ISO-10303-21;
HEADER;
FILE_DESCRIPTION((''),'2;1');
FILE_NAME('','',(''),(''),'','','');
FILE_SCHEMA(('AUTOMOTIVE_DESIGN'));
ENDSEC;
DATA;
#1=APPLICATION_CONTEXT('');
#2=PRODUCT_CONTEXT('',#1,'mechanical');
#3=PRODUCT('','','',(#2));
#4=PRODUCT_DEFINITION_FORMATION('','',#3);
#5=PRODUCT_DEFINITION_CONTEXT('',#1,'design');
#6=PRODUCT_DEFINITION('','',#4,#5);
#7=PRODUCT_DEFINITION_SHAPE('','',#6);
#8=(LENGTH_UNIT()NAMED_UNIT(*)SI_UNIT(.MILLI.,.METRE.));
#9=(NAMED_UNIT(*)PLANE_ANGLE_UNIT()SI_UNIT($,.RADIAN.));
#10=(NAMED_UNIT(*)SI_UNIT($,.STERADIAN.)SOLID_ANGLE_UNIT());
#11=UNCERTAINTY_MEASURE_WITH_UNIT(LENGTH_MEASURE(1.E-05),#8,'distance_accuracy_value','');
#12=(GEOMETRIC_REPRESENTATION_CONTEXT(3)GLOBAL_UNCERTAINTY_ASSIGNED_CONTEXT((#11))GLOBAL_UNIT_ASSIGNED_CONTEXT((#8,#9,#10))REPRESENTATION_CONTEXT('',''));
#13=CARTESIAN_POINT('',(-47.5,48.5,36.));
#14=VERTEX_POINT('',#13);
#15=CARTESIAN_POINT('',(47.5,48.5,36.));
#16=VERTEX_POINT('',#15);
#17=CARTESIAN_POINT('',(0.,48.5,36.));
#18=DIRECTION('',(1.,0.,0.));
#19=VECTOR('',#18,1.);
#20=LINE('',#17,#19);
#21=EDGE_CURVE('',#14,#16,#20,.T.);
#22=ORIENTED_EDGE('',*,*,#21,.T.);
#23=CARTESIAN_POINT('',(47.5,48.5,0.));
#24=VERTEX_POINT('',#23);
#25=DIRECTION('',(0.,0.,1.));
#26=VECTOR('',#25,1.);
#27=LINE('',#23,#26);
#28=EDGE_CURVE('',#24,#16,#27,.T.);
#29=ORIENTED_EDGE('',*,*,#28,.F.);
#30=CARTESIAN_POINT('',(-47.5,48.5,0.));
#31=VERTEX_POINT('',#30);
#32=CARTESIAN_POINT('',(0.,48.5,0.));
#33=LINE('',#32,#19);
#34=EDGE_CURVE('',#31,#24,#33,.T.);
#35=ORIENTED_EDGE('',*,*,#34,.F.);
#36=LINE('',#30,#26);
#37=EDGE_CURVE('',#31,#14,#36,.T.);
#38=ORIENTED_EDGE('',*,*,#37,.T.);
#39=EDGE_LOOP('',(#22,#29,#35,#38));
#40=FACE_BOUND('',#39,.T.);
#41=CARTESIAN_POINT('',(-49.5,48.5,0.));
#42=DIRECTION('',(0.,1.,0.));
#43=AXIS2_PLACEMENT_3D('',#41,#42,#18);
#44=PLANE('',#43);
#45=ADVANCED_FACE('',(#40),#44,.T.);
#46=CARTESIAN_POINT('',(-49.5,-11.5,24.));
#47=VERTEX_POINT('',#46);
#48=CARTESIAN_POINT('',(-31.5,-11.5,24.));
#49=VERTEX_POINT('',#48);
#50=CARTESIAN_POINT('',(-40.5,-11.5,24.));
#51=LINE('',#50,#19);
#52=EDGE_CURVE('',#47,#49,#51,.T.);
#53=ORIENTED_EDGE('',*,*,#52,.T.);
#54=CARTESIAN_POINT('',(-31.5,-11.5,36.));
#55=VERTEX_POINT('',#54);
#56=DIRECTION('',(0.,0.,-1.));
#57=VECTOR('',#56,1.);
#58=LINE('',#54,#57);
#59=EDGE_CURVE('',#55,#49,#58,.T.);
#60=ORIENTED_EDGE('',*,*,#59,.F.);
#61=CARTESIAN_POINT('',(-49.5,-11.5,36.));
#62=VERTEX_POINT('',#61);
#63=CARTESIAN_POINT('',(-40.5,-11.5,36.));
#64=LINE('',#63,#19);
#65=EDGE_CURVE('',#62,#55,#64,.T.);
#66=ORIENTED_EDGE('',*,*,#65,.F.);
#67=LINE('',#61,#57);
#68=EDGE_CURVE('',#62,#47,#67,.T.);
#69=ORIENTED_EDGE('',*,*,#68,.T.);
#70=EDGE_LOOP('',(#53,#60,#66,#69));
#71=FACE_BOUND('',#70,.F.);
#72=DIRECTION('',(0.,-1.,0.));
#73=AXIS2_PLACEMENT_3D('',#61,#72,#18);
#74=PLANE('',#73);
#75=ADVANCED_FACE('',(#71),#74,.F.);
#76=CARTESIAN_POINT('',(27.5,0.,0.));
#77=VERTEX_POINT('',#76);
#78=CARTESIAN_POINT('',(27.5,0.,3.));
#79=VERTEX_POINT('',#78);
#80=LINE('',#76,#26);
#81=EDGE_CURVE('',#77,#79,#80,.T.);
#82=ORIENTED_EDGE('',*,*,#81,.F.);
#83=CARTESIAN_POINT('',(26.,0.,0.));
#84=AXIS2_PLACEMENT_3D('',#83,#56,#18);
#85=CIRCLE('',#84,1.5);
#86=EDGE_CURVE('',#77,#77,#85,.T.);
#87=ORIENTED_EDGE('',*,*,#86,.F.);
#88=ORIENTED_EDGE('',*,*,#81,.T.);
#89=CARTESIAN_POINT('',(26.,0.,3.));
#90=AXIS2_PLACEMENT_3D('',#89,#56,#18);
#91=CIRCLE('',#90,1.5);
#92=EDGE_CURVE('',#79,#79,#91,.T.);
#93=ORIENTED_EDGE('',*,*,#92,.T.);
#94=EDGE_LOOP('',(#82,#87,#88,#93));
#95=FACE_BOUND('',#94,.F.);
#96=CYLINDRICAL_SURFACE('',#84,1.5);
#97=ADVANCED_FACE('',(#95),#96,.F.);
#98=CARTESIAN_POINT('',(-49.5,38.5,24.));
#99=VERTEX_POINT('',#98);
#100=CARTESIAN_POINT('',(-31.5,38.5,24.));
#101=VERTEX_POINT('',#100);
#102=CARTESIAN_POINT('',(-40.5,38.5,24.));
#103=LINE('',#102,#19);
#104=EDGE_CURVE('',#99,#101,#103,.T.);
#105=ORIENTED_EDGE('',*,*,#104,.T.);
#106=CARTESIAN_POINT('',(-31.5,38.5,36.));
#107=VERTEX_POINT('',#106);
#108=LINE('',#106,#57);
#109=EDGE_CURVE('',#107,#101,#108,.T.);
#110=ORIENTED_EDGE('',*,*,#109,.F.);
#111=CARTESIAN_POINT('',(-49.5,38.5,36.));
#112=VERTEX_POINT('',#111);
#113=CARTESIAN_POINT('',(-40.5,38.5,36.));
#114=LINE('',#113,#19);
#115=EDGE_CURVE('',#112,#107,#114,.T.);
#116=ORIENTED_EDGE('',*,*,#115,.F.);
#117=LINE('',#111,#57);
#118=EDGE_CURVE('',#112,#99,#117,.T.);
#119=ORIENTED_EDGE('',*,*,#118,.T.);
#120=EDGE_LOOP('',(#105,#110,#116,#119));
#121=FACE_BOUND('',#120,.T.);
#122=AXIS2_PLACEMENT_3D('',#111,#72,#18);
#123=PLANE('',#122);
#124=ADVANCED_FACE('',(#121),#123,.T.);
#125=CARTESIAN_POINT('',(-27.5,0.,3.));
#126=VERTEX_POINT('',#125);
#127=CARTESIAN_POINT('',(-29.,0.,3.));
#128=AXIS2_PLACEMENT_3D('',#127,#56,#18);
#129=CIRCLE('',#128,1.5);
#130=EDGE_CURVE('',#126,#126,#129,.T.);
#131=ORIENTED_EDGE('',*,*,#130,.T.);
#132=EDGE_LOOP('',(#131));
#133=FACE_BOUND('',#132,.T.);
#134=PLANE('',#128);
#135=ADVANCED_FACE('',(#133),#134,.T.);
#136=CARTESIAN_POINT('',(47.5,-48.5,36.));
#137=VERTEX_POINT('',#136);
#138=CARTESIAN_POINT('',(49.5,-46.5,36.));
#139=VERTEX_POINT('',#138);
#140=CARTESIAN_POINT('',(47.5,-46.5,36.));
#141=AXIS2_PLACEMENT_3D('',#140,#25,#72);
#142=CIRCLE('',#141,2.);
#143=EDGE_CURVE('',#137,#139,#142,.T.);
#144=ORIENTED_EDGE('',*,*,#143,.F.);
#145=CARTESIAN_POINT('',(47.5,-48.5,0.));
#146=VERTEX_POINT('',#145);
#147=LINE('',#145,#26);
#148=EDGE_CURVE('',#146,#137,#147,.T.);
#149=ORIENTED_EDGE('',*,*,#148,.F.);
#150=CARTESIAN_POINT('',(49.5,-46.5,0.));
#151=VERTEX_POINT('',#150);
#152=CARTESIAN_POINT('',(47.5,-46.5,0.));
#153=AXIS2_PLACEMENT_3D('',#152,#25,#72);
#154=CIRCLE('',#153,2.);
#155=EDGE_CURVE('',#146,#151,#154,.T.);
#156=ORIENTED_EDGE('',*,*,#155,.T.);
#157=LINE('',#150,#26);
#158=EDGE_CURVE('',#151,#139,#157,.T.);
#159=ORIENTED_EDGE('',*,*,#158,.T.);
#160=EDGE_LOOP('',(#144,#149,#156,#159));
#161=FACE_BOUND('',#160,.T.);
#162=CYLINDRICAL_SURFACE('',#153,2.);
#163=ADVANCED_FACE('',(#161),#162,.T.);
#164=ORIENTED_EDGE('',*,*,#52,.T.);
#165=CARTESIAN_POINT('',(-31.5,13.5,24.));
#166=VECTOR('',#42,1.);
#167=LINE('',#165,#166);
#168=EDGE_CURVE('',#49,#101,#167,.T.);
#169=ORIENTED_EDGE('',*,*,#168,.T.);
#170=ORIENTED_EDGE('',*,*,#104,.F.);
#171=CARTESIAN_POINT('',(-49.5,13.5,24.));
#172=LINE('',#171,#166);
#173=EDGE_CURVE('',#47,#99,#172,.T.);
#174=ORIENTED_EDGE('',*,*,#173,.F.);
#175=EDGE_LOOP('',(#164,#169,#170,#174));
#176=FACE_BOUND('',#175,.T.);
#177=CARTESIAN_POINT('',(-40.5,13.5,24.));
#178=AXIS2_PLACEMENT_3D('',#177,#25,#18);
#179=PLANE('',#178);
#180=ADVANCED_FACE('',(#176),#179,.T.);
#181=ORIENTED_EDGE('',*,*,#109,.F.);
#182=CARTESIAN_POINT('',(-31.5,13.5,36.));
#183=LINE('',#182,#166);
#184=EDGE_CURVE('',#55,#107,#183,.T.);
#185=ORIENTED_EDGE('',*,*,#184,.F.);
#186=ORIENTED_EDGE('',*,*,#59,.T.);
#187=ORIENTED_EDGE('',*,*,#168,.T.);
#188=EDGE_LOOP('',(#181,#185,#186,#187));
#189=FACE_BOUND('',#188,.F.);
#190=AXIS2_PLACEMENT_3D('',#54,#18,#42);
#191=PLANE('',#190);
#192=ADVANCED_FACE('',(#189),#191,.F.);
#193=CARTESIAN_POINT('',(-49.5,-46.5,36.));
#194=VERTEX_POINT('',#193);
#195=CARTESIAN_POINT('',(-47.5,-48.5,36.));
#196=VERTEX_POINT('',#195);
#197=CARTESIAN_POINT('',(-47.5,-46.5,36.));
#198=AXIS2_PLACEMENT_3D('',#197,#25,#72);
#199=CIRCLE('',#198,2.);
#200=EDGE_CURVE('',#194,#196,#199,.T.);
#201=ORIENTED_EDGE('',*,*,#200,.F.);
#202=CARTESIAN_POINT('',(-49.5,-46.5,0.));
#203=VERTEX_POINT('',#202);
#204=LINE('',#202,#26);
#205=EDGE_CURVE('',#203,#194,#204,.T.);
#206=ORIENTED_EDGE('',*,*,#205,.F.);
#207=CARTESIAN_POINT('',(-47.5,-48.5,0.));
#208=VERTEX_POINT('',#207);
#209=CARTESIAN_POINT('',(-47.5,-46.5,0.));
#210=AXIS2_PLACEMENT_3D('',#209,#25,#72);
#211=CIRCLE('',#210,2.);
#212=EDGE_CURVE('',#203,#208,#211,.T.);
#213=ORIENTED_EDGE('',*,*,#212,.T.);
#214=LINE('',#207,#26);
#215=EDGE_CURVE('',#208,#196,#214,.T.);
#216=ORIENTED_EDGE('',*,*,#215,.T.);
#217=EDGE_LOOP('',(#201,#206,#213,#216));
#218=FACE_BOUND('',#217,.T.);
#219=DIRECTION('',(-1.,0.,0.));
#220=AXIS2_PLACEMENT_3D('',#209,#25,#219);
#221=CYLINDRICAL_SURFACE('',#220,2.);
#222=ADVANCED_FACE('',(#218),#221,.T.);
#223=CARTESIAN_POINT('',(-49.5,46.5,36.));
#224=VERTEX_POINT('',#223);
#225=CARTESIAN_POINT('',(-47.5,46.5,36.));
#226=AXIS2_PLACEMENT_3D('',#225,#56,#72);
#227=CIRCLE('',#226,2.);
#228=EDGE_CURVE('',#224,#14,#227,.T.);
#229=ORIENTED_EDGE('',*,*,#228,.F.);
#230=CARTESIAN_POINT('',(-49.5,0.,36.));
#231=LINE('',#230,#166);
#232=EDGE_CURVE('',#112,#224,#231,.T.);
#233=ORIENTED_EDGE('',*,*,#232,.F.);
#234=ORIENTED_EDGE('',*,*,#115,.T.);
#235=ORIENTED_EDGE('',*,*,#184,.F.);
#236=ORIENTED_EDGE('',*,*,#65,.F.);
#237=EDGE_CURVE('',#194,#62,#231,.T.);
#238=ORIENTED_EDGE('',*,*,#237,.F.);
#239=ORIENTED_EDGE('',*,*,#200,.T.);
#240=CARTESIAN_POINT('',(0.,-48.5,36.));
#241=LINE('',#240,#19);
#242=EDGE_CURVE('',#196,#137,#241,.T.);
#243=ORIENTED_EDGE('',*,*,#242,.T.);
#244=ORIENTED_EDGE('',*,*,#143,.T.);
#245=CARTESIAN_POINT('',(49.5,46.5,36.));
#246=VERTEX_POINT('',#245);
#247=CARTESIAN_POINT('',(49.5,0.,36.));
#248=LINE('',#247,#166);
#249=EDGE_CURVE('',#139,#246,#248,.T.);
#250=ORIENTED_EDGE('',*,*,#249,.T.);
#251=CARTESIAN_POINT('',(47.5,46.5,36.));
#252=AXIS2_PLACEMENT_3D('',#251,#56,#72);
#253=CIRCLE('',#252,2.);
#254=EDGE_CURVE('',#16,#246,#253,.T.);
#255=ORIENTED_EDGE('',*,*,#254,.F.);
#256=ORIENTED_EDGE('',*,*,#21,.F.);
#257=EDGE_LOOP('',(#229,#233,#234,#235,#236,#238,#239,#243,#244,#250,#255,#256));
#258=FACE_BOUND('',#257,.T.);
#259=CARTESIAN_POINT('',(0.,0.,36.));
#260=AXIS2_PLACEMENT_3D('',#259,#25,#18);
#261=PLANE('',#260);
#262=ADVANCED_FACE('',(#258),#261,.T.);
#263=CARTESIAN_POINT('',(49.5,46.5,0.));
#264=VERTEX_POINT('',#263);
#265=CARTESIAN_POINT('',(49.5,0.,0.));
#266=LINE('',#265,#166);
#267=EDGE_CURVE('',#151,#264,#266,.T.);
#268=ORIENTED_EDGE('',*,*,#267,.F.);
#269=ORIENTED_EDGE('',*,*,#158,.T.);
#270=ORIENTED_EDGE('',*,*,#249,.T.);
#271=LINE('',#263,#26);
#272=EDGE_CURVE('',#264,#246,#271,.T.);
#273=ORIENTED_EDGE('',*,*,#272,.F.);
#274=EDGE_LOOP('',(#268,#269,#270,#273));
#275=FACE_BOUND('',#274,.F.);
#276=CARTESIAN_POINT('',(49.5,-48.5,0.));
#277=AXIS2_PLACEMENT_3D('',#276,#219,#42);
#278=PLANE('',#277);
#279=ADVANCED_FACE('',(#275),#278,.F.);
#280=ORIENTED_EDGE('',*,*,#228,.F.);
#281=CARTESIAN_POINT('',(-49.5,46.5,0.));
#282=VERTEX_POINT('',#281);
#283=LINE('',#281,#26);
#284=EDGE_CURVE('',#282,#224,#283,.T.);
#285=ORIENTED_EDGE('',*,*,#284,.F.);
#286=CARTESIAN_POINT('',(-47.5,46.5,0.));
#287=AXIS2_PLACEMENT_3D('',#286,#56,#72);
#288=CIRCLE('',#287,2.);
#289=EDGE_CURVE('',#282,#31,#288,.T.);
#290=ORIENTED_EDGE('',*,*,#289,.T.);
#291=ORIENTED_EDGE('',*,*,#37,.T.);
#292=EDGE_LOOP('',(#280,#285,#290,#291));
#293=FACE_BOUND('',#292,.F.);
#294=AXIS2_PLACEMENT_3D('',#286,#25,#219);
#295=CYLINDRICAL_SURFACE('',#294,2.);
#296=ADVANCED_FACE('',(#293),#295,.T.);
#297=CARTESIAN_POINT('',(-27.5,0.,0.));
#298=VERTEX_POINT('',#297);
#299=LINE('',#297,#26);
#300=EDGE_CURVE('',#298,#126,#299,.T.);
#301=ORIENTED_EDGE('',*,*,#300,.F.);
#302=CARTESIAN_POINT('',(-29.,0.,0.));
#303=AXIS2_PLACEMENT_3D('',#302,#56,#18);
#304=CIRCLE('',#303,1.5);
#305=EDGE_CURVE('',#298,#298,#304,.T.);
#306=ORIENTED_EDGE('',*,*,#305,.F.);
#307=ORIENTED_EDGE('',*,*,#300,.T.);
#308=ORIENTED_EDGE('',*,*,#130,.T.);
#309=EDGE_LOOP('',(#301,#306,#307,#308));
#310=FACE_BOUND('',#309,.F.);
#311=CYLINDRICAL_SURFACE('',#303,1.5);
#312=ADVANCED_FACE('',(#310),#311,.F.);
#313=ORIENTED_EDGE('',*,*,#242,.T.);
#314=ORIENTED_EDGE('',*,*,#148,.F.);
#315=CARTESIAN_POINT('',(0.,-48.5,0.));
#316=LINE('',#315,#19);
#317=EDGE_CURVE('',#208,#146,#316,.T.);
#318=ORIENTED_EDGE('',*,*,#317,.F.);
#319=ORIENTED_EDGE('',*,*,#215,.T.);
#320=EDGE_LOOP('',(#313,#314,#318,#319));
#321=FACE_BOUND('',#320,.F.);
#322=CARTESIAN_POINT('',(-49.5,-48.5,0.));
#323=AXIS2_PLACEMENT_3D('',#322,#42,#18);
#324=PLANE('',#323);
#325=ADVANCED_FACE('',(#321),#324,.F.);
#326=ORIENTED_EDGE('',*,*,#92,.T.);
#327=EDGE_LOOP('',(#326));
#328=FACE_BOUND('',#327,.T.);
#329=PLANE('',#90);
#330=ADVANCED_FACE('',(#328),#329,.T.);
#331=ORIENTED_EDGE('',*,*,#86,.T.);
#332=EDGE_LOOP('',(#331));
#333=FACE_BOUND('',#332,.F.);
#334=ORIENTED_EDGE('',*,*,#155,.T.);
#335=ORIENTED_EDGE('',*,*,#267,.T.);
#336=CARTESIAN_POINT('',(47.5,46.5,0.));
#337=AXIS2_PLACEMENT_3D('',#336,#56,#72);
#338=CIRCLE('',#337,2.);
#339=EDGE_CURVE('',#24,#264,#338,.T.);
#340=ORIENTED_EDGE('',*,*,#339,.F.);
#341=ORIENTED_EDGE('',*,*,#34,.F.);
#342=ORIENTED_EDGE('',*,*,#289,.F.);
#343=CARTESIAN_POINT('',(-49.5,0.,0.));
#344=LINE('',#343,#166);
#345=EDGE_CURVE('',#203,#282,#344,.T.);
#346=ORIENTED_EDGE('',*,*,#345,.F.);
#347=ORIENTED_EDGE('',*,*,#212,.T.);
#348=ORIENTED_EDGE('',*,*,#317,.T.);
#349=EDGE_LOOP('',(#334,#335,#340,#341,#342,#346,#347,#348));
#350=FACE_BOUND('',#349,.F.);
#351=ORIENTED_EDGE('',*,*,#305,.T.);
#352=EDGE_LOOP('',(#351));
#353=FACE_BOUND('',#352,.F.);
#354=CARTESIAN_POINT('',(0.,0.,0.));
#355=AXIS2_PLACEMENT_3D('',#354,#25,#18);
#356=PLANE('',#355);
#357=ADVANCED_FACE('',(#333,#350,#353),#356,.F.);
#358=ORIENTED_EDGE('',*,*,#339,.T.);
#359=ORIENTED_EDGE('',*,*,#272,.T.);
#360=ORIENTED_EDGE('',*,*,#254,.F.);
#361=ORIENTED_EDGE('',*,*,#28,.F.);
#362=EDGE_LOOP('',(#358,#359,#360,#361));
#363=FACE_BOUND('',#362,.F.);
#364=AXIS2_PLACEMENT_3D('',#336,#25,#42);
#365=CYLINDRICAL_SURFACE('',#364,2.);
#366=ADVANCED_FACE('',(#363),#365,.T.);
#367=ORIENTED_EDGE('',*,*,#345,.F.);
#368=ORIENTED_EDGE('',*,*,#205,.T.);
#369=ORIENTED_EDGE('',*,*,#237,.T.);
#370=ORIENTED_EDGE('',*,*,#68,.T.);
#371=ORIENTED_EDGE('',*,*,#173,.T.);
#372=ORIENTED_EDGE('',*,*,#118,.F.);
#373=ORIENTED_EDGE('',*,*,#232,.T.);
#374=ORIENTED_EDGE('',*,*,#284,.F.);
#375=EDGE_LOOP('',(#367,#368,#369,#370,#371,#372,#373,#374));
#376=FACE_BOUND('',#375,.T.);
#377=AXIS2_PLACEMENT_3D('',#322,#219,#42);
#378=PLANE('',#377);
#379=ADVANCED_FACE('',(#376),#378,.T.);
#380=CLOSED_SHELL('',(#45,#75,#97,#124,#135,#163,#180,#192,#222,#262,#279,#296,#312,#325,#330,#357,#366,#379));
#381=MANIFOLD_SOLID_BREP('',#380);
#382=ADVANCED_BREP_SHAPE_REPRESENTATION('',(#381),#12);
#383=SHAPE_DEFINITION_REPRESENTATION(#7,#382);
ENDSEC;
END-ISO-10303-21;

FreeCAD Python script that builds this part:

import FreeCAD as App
import Part
import Sketcher

V = App.Vector


def edges_at(feature, points):
    """Names of the edges that pass closest to the given points."""
    edges = feature.Shape.Edges
    near = lambda p: min(range(len(edges)), key=lambda i: edges[i].distToShape(Part.Vertex(*p))[0])
    return sorted({f"Edge{near(p) + 1}" for p in points})

doc = App.newDocument("Part")
body = doc.addObject("PartDesign::Body", "Body")

sketch1 = body.newObject("Sketcher::SketchObject", "Sketch")
sketch1.AttachmentSupport = (doc.getObject("XY_Plane"), [""])
sketch1.MapMode = "FlatFace"
sketch1.addGeometry([
    Part.LineSegment(V(-49.5, 48.5, 0), V(-49.5, -48.5, 0)),
    Part.LineSegment(V(-49.5, -48.5, 0), V(49.5, -48.5, 0)),
    Part.LineSegment(V(49.5, -48.5, 0), V(49.5, 48.5, 0)),
    Part.LineSegment(V(49.5, 48.5, 0), V(-49.5, 48.5, 0)),
], False)
sketch1.addConstraint([
    Sketcher.Constraint("Coincident", 0, 2, 1, 1),
    Sketcher.Constraint("Coincident", 1, 2, 2, 1),
    Sketcher.Constraint("Coincident", 2, 2, 3, 1),
    Sketcher.Constraint("Coincident", 3, 2, 0, 1),
    Sketcher.Constraint("Vertical", 0),
    Sketcher.Constraint("Horizontal", 1),
    Sketcher.Constraint("Vertical", 2),
    Sketcher.Constraint("Horizontal", 3),
    Sketcher.Constraint("Symmetric", 0, 2, 2, 2, -1, 1),
    Sketcher.Constraint("DistanceX", 1, 1, 1, 2, 99.0),
    Sketcher.Constraint("DistanceY", 0, 2, 0, 1, 97.0),
])
pad1 = body.newObject("PartDesign::Pad", "Pad")
pad1.Profile = sketch1
pad1.Length = 36

sketch2 = body.newObject("Sketcher::SketchObject", "Sketch001")
sketch2.AttachmentSupport = (doc.getObject("XY_Plane"), [""])
sketch2.MapMode = "FlatFace"
sketch2.addGeometry([
    Part.Circle(V(-29, 0, 0), V(0, 0, 1), 1.5),
    Part.Circle(V(26, 0, 0), V(0, 0, 1), 1.5),
], False)
sketch2.addConstraint([
    Sketcher.Constraint("Equal", 0, 1),
    Sketcher.Constraint("PointOnObject", 0, 3, -1),
    Sketcher.Constraint("PointOnObject", 1, 3, -1),
    Sketcher.Constraint("Diameter", 0, 3.0),
    Sketcher.Constraint("DistanceX", 0, 3, -1, 1, 29.0),
    Sketcher.Constraint("DistanceX", -1, 1, 1, 3, 26.0),
])
pocket1 = body.newObject("PartDesign::Pocket", "Pocket")
pocket1.Profile = sketch2
pocket1.Length = 3
pocket1.Reversed = True

sketch3 = body.newObject("Sketcher::SketchObject", "Sketch002")
sketch3.AttachmentSupport = (doc.getObject("XY_Plane"), [""])
sketch3.MapMode = "FlatFace"
sketch3.AttachmentOffset = App.Placement(V(0, 0, 36), App.Rotation())
sketch3.addGeometry([
    Part.LineSegment(V(-49.5, 38.5, 0), V(-49.5, -11.5, 0)),
    Part.LineSegment(V(-49.5, -11.5, 0), V(-31.5, -11.5, 0)),
    Part.LineSegment(V(-31.5, -11.5, 0), V(-31.5, 38.5, 0)),
    Part.LineSegment(V(-31.5, 38.5, 0), V(-49.5, 38.5, 0)),
], False)
sketch3.addConstraint([
    Sketcher.Constraint("Coincident", 0, 2, 1, 1),
    Sketcher.Constraint("Coincident", 1, 2, 2, 1),
    Sketcher.Constraint("Coincident", 2, 2, 3, 1),
    Sketcher.Constraint("Coincident", 3, 2, 0, 1),
    Sketcher.Constraint("Vertical", 0),
    Sketcher.Constraint("Horizontal", 1),
    Sketcher.Constraint("Vertical", 2),
    Sketcher.Constraint("Horizontal", 3),
    Sketcher.Constraint("DistanceX", 1, 1, 1, 2, 18.0),
    Sketcher.Constraint("DistanceY", 0, 2, 0, 1, 50.0),
    Sketcher.Constraint("DistanceX", 0, 2, -1, 1, 49.5),
    Sketcher.Constraint("DistanceY", 0, 2, -1, 1, 11.5),
])
pocket2 = body.newObject("PartDesign::Pocket", "Pocket001")
pocket2.Profile = sketch3
pocket2.Length = 12
doc.recompute()

fillet = body.newObject("PartDesign::Fillet", "Fillet")
fillet.Base = (pocket2, edges_at(pocket2, [
    (-49.5, -48.5, 18),
    (49.5, -48.5, 18),
    (49.5, 48.5, 18),
    (-49.5, 48.5, 18),
]))
fillet.Radius = 2

doc.recompute()
